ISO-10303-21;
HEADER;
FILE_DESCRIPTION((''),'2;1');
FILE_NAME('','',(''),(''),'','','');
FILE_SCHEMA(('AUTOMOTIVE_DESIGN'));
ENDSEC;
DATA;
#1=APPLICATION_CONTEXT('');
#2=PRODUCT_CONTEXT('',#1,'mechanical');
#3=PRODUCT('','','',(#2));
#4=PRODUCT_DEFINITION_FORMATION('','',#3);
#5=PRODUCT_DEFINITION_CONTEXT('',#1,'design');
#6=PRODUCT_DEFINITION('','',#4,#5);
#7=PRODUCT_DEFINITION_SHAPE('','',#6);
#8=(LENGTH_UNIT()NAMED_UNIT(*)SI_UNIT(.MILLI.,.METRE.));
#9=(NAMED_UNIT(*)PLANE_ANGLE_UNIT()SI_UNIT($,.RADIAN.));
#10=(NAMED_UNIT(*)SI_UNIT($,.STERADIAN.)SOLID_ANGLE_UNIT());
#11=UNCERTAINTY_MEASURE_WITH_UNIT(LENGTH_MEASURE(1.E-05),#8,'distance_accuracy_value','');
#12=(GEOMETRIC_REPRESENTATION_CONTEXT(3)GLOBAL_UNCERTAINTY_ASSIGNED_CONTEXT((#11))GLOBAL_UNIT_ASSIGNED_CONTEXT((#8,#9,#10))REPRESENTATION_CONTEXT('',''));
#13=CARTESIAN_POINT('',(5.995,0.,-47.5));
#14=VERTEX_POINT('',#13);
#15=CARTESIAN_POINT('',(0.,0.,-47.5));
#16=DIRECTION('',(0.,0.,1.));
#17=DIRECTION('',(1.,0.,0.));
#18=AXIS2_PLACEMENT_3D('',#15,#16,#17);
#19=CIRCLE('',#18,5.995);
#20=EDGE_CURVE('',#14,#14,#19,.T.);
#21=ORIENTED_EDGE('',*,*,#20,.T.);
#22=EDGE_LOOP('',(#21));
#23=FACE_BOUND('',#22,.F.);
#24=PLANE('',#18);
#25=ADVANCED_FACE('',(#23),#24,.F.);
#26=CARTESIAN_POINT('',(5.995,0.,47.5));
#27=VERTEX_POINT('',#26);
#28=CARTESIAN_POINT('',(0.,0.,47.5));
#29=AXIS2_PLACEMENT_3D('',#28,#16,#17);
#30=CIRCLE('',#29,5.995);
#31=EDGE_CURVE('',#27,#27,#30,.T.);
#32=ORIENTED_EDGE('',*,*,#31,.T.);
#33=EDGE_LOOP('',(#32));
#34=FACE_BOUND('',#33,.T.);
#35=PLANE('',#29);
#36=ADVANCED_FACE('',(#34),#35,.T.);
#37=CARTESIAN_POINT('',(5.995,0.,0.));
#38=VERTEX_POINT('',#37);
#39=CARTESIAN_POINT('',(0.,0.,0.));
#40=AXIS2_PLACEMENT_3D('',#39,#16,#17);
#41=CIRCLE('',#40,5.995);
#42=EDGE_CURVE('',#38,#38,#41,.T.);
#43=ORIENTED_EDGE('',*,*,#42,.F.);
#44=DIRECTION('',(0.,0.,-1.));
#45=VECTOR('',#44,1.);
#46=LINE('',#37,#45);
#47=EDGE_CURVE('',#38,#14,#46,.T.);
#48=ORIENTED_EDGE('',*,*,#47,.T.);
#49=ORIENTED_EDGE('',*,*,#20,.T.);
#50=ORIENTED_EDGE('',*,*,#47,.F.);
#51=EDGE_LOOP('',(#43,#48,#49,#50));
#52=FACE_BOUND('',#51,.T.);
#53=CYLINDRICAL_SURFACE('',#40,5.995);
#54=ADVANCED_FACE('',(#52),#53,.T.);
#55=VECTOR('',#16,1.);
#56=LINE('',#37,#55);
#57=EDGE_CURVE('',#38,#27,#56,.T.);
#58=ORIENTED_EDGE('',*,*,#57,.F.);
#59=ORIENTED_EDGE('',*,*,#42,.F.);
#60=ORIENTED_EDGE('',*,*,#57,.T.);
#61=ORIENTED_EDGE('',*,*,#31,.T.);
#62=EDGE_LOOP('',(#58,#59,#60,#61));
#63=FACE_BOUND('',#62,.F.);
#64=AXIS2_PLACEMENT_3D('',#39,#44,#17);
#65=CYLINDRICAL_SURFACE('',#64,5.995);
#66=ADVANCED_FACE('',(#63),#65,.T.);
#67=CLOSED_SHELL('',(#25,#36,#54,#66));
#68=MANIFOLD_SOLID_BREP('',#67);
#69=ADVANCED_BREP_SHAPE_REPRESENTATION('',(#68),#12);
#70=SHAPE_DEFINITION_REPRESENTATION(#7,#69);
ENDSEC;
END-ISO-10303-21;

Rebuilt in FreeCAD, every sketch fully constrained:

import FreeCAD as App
import Part
import Sketcher
from FreeCAD import Vector
Q = App.Units.Quantity

doc = App.newDocument("Part")
body = doc.addObject("PartDesign::Body", "Body")

# Sketch on XY plane
sketch1 = doc.addObject("Sketcher::SketchObject", "Sketch")
body.addObject(sketch1)
sketch1.AttachmentSupport = (doc.XY_Plane, [""])
sketch1.MapMode = "FlatFace"
sketch1.addGeometry(Part.Circle(Vector(0, 0, 0), Vector(0, 0, 1), 6), False)
sketch1.addConstraint([
    Sketcher.Constraint("Coincident", 0, 3, -1, 1),
    Sketcher.Constraint("Diameter", 0, Q("11.99 mm")),
])
pad1 = doc.addObject("PartDesign::Pad", "Pad")
body.addObject(pad1)
pad1.Profile = sketch1
pad1.Length = 95
pad1.Midplane = True

doc.recompute()
